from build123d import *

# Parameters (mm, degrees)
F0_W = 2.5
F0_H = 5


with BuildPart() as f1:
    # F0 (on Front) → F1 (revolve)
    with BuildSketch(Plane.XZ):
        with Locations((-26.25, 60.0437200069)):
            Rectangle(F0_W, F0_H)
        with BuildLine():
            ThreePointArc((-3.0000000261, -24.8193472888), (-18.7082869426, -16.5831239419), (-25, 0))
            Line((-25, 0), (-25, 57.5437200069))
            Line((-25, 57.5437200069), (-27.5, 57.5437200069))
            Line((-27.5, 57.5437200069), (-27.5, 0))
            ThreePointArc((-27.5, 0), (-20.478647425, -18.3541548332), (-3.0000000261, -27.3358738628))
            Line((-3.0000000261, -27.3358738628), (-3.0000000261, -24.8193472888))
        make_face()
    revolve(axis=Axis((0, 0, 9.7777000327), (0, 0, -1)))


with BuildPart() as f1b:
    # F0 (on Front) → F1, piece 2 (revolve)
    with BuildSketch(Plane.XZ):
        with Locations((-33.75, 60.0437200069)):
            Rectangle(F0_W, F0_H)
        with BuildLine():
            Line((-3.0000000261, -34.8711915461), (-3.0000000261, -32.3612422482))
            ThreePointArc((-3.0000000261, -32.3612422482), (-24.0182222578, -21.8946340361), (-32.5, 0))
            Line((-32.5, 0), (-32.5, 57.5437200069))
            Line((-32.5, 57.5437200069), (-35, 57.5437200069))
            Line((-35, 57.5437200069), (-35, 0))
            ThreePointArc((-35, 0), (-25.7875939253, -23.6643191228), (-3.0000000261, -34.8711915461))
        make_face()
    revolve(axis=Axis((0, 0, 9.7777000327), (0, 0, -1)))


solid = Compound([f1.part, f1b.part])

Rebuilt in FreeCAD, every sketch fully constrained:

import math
import FreeCAD as App
import Part
import Sketcher
from FreeCAD import Vector

doc = App.newDocument("Part")
body = doc.addObject("PartDesign::Body", "Body")

sketch1 = body.newObject("Sketcher::SketchObject", "Sketch")
sketch1.AttachmentSupport = (doc.getObject("XZ_Plane"), [""])
sketch1.MapMode = "FlatFace"
sketch1.addGeometry([
    Part.LineSegment(Vector(-27.5, 62.5, 0), Vector(-27.5, 0, 0)),
    Part.ArcOfCircle(Part.Circle(Vector(0, 0, 0), Vector(0, 0, 1), 27.5), math.radians(180), math.radians(264)),
    Part.LineSegment(Vector(-3, -27.3, 0), Vector(-3, -24.8, 0)),
    Part.ArcOfCircle(Part.Circle(Vector(0, 0, 0), Vector(0, 0, 1), 25), math.radians(180), math.radians(263)),
    Part.LineSegment(Vector(-25, 0, 0), Vector(-25, 62.5, 0)),
    Part.LineSegment(Vector(-25, 62.5, 0), Vector(-27.5, 62.5, 0)),
], False)
sketch1.addConstraint([
    Sketcher.Constraint("Tangent", 0, 2, 1, 1),
    Sketcher.Constraint("Coincident", 1, 2, 2, 1),
    Sketcher.Constraint("Coincident", 2, 2, 3, 2),
    Sketcher.Constraint("Tangent", 3, 1, 4, 1),
    Sketcher.Constraint("Coincident", 4, 2, 5, 1),
    Sketcher.Constraint("Coincident", 5, 2, 0, 1),
    Sketcher.Constraint("Vertical", 0),
    Sketcher.Constraint("Vertical", 2),
    Sketcher.Constraint("Vertical", 4),
    Sketcher.Constraint("Horizontal", 5),
    Sketcher.Constraint("Coincident", 1, 3, -1, 1),
    Sketcher.Constraint("Coincident", 3, 3, -1, 1),
    Sketcher.Constraint("Radius", 3, 25.0),
    Sketcher.Constraint("Radius", 1, 27.5),
    Sketcher.Constraint("DistanceX", 1, 2, -1, 1, 3.0),
    Sketcher.Constraint("DistanceY", 0, 2, 0, 1, 62.54372),
])
revolution = body.newObject("PartDesign::Revolution", "Revolution")
revolution.Profile = sketch1
revolution.ReferenceAxis = (sketch1, ["V_Axis"])
revolution.Angle = 360
body2 = doc.addObject("PartDesign::Body", "Body001")

sketch2 = body2.newObject("Sketcher::SketchObject", "Sketch001")
sketch2.AttachmentSupport = (doc.getObject("XZ_Plane001"), [""])
sketch2.MapMode = "FlatFace"
sketch2.addGeometry([
    Part.LineSegment(Vector(-35, 62.5, 0), Vector(-35, 0, 0)),
    Part.ArcOfCircle(Part.Circle(Vector(0, 0, 0), Vector(0, 0, 1), 35), math.radians(180), math.radians(265)),
    Part.LineSegment(Vector(-3, -34.9, 0), Vector(-3, -32.4, 0)),
    Part.ArcOfCircle(Part.Circle(Vector(0, 0, 0), Vector(0, 0, 1), 32.5), math.radians(180), math.radians(265)),
    Part.LineSegment(Vector(-32.5, 0, 0), Vector(-32.5, 62.5, 0)),
    Part.LineSegment(Vector(-32.5, 62.5, 0), Vector(-35, 62.5, 0)),
], False)
sketch2.addConstraint([
    Sketcher.Constraint("Tangent", 0, 2, 1, 1),
    Sketcher.Constraint("Coincident", 1, 2, 2, 1),
    Sketcher.Constraint("Coincident", 2, 2, 3, 2),
    Sketcher.Constraint("Tangent", 3, 1, 4, 1),
    Sketcher.Constraint("Coincident", 4, 2, 5, 1),
    Sketcher.Constraint("Coincident", 5, 2, 0, 1),
    Sketcher.Constraint("Vertical", 0),
    Sketcher.Constraint("Vertical", 2),
    Sketcher.Constraint("Vertical", 4),
    Sketcher.Constraint("Horizontal", 5),
    Sketcher.Constraint("Coincident", 1, 3, -1, 1),
    Sketcher.Constraint("Coincident", 3, 3, -1, 1),
    Sketcher.Constraint("Radius", 1, 35.0),
    Sketcher.Constraint("Radius", 3, 32.5),
    Sketcher.Constraint("DistanceX", 1, 2, -1, 1, 3.0),
    Sketcher.Constraint("DistanceY", 0, 2, 0, 1, 62.54372),
])
revolution2 = body2.newObject("PartDesign::Revolution", "Revolution001")
revolution2.Profile = sketch2
revolution2.ReferenceAxis = (sketch2, ["V_Axis"])
revolution2.Angle = 360

doc.recompute()
